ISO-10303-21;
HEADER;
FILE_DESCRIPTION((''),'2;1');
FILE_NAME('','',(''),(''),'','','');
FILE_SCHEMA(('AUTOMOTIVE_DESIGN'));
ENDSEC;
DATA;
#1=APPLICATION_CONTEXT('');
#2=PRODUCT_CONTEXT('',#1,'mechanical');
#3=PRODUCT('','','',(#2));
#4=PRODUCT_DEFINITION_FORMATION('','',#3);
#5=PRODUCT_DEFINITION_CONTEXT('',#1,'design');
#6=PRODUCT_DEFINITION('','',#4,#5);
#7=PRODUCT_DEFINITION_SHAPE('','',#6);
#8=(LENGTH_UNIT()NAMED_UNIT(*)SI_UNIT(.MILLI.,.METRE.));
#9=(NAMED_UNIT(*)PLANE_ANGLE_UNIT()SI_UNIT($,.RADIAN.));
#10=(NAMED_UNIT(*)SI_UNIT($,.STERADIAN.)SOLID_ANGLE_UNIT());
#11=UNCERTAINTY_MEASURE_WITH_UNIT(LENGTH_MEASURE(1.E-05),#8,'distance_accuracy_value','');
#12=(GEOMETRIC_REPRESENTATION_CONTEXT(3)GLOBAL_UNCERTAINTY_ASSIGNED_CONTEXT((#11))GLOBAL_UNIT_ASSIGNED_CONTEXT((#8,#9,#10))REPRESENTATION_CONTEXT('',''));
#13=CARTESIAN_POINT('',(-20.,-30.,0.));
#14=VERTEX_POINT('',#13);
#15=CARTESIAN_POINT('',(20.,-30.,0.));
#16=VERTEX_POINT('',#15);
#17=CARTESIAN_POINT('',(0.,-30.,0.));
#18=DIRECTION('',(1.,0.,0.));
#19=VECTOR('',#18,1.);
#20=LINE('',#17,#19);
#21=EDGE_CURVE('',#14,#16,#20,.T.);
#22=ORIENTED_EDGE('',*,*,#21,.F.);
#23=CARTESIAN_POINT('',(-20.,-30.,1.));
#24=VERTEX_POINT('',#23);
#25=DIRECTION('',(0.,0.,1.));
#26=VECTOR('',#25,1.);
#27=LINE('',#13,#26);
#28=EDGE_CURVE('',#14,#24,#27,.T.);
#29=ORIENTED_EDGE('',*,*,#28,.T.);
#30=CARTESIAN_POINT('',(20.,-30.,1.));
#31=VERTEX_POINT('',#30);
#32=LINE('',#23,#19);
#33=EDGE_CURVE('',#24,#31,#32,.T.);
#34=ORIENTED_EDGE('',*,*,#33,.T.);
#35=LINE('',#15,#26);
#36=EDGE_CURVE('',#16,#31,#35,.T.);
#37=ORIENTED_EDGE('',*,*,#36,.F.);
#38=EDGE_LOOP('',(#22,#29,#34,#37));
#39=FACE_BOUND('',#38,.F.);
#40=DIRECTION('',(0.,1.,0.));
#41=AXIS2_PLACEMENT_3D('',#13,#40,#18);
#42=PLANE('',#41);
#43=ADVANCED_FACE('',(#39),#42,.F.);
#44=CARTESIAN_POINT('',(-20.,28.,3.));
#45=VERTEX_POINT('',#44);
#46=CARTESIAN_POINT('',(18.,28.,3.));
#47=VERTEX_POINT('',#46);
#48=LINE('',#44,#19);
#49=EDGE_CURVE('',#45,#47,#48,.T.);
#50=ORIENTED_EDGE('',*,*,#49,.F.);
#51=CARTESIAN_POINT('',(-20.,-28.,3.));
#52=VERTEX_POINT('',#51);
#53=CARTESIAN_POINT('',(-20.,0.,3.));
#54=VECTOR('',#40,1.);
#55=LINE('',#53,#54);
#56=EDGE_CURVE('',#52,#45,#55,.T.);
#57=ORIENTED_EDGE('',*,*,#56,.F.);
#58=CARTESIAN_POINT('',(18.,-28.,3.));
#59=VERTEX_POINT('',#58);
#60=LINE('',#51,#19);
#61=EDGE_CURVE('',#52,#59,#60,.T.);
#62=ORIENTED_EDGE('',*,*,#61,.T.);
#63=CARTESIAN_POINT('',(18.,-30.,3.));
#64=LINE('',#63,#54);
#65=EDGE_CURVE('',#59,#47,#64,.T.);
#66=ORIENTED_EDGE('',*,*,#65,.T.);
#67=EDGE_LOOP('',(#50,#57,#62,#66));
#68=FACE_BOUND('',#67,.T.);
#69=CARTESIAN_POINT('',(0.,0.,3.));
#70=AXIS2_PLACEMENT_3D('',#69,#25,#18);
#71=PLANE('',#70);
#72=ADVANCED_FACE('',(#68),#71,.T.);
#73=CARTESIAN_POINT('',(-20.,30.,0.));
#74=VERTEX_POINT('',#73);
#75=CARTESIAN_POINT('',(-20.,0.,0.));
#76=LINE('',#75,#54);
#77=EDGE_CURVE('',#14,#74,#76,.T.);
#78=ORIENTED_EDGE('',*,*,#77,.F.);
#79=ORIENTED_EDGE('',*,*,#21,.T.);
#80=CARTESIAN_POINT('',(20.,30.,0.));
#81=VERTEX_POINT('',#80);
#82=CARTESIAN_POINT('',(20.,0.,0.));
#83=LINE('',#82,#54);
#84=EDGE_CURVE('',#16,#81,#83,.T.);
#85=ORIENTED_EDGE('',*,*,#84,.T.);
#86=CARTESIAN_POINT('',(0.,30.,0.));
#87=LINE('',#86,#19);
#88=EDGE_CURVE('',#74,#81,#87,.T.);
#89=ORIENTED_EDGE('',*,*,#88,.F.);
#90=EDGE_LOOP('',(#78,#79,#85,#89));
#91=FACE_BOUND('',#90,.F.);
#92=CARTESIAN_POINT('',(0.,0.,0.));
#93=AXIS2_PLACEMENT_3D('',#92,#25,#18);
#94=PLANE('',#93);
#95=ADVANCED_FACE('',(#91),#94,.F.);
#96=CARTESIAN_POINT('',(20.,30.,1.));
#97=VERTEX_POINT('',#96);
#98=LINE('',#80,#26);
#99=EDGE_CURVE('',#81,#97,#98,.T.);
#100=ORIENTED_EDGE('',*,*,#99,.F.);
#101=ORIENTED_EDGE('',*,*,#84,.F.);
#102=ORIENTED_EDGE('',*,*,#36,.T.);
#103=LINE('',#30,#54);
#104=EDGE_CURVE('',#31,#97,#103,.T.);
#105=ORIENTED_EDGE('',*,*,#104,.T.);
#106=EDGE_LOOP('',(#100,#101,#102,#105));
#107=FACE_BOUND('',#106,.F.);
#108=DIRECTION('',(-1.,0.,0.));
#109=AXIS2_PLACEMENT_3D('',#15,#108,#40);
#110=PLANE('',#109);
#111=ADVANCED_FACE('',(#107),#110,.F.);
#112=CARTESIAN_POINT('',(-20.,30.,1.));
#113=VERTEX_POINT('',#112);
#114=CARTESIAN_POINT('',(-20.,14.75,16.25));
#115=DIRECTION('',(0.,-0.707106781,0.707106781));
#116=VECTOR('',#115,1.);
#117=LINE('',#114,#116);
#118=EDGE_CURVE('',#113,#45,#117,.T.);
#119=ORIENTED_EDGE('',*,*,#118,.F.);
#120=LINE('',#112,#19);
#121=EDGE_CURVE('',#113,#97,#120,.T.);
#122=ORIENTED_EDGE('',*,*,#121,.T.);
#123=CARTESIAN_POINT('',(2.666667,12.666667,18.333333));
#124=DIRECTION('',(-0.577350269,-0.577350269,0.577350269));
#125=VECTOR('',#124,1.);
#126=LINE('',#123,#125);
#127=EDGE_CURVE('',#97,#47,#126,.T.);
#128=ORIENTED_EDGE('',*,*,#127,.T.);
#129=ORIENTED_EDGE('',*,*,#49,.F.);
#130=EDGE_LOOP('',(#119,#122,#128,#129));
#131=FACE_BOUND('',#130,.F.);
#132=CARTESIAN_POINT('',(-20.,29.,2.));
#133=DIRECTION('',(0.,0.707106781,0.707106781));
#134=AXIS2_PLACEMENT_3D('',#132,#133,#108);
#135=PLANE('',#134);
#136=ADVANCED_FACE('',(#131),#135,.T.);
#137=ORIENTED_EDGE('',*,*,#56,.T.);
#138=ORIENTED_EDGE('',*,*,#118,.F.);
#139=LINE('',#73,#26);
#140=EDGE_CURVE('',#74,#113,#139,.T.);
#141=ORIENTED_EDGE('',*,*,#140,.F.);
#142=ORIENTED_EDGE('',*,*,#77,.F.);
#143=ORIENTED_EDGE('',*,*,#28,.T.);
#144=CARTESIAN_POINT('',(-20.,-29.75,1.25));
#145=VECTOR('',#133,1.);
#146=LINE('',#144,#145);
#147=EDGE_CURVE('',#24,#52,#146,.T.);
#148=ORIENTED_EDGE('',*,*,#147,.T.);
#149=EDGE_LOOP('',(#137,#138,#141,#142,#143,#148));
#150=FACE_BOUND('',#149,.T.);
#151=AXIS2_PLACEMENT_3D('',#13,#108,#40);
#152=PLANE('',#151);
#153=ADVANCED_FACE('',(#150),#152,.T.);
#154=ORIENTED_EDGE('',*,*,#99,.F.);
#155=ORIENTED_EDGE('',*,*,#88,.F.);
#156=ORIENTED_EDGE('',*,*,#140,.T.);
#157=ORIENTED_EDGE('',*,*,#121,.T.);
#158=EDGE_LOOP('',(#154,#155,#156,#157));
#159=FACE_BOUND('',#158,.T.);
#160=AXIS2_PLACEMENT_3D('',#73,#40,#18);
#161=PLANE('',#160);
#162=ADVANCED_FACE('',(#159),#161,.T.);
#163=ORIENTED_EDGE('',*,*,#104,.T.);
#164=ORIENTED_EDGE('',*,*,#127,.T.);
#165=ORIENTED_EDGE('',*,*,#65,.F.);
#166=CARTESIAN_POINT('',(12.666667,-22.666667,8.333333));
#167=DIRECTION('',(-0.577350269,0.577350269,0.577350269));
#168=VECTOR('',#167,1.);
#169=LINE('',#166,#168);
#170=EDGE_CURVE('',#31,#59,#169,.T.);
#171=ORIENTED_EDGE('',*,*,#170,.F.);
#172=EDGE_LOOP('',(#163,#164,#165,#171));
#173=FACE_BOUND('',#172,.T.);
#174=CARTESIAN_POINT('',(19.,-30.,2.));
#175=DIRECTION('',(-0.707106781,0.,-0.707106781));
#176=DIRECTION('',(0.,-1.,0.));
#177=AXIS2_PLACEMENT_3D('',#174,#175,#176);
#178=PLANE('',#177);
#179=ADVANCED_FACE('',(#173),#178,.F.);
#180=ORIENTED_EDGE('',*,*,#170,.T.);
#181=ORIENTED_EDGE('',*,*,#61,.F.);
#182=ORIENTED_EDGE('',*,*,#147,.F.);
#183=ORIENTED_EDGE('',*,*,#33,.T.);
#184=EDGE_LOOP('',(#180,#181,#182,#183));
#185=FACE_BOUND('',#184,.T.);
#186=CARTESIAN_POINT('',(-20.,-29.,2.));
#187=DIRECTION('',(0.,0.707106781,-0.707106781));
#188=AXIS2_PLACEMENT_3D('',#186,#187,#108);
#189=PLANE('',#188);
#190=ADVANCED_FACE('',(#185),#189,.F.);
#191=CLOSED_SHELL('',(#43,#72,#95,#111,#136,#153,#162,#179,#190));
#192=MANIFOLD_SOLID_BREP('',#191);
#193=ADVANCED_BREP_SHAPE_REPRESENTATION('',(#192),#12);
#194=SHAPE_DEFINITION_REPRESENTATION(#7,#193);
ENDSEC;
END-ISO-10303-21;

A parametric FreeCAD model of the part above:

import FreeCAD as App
import Part
import Sketcher


def edges_at(feature, points):
    """Names of the edges that pass closest to the given points."""
    edges = feature.Shape.Edges
    near = lambda p: min(range(len(edges)), key=lambda i: edges[i].distToShape(Part.Vertex(*p))[0])
    return sorted({f"Edge{near(p) + 1}" for p in points})


def add_polygon(sketch, points):
    """Adds a closed chain of lines whose ends are joined by coincident constraints."""
    first, n = sketch.GeometryCount, len(points)
    for a, b in zip(points, points[1:] + points[:1]):
        sketch.addGeometry(Part.LineSegment(App.Vector(*a, 0), App.Vector(*b, 0)), False)
    for i in range(n):
        sketch.addConstraint(Sketcher.Constraint("Coincident", first + i, 2, first + (i + 1) % n, 1))

doc = App.newDocument("Part")
body = doc.addObject("PartDesign::Body", "Body")

sketch1 = body.newObject("Sketcher::SketchObject", "Sketch")
sketch1.AttachmentSupport = (doc.getObject("XY_Plane"), [""])
sketch1.MapMode = "FlatFace"
add_polygon(sketch1, [(-20, 30), (-20, -30), (20, -30), (20, 30)])
sketch1.addConstraint([
    Sketcher.Constraint("Vertical", 0),
    Sketcher.Constraint("Horizontal", 1),
    Sketcher.Constraint("Vertical", 2),
    Sketcher.Constraint("Horizontal", 3),
    Sketcher.Constraint("Symmetric", 0, 2, 2, 2, -1, 1),
    Sketcher.Constraint("DistanceX", 1, 1, 1, 2, 40.0),
    Sketcher.Constraint("DistanceY", 0, 2, 0, 1, 60.0),
])
pad1 = body.newObject("PartDesign::Pad", "Pad")
pad1.Profile = sketch1
pad1.Length = 3
doc.recompute()

chamfer = body.newObject("PartDesign::Chamfer", "Chamfer")
chamfer.Base = (pad1, edges_at(pad1, [(0, -30, 3), (0, 30, 3), (20, 0, 3)]))
chamfer.Size = 2

doc.recompute()
